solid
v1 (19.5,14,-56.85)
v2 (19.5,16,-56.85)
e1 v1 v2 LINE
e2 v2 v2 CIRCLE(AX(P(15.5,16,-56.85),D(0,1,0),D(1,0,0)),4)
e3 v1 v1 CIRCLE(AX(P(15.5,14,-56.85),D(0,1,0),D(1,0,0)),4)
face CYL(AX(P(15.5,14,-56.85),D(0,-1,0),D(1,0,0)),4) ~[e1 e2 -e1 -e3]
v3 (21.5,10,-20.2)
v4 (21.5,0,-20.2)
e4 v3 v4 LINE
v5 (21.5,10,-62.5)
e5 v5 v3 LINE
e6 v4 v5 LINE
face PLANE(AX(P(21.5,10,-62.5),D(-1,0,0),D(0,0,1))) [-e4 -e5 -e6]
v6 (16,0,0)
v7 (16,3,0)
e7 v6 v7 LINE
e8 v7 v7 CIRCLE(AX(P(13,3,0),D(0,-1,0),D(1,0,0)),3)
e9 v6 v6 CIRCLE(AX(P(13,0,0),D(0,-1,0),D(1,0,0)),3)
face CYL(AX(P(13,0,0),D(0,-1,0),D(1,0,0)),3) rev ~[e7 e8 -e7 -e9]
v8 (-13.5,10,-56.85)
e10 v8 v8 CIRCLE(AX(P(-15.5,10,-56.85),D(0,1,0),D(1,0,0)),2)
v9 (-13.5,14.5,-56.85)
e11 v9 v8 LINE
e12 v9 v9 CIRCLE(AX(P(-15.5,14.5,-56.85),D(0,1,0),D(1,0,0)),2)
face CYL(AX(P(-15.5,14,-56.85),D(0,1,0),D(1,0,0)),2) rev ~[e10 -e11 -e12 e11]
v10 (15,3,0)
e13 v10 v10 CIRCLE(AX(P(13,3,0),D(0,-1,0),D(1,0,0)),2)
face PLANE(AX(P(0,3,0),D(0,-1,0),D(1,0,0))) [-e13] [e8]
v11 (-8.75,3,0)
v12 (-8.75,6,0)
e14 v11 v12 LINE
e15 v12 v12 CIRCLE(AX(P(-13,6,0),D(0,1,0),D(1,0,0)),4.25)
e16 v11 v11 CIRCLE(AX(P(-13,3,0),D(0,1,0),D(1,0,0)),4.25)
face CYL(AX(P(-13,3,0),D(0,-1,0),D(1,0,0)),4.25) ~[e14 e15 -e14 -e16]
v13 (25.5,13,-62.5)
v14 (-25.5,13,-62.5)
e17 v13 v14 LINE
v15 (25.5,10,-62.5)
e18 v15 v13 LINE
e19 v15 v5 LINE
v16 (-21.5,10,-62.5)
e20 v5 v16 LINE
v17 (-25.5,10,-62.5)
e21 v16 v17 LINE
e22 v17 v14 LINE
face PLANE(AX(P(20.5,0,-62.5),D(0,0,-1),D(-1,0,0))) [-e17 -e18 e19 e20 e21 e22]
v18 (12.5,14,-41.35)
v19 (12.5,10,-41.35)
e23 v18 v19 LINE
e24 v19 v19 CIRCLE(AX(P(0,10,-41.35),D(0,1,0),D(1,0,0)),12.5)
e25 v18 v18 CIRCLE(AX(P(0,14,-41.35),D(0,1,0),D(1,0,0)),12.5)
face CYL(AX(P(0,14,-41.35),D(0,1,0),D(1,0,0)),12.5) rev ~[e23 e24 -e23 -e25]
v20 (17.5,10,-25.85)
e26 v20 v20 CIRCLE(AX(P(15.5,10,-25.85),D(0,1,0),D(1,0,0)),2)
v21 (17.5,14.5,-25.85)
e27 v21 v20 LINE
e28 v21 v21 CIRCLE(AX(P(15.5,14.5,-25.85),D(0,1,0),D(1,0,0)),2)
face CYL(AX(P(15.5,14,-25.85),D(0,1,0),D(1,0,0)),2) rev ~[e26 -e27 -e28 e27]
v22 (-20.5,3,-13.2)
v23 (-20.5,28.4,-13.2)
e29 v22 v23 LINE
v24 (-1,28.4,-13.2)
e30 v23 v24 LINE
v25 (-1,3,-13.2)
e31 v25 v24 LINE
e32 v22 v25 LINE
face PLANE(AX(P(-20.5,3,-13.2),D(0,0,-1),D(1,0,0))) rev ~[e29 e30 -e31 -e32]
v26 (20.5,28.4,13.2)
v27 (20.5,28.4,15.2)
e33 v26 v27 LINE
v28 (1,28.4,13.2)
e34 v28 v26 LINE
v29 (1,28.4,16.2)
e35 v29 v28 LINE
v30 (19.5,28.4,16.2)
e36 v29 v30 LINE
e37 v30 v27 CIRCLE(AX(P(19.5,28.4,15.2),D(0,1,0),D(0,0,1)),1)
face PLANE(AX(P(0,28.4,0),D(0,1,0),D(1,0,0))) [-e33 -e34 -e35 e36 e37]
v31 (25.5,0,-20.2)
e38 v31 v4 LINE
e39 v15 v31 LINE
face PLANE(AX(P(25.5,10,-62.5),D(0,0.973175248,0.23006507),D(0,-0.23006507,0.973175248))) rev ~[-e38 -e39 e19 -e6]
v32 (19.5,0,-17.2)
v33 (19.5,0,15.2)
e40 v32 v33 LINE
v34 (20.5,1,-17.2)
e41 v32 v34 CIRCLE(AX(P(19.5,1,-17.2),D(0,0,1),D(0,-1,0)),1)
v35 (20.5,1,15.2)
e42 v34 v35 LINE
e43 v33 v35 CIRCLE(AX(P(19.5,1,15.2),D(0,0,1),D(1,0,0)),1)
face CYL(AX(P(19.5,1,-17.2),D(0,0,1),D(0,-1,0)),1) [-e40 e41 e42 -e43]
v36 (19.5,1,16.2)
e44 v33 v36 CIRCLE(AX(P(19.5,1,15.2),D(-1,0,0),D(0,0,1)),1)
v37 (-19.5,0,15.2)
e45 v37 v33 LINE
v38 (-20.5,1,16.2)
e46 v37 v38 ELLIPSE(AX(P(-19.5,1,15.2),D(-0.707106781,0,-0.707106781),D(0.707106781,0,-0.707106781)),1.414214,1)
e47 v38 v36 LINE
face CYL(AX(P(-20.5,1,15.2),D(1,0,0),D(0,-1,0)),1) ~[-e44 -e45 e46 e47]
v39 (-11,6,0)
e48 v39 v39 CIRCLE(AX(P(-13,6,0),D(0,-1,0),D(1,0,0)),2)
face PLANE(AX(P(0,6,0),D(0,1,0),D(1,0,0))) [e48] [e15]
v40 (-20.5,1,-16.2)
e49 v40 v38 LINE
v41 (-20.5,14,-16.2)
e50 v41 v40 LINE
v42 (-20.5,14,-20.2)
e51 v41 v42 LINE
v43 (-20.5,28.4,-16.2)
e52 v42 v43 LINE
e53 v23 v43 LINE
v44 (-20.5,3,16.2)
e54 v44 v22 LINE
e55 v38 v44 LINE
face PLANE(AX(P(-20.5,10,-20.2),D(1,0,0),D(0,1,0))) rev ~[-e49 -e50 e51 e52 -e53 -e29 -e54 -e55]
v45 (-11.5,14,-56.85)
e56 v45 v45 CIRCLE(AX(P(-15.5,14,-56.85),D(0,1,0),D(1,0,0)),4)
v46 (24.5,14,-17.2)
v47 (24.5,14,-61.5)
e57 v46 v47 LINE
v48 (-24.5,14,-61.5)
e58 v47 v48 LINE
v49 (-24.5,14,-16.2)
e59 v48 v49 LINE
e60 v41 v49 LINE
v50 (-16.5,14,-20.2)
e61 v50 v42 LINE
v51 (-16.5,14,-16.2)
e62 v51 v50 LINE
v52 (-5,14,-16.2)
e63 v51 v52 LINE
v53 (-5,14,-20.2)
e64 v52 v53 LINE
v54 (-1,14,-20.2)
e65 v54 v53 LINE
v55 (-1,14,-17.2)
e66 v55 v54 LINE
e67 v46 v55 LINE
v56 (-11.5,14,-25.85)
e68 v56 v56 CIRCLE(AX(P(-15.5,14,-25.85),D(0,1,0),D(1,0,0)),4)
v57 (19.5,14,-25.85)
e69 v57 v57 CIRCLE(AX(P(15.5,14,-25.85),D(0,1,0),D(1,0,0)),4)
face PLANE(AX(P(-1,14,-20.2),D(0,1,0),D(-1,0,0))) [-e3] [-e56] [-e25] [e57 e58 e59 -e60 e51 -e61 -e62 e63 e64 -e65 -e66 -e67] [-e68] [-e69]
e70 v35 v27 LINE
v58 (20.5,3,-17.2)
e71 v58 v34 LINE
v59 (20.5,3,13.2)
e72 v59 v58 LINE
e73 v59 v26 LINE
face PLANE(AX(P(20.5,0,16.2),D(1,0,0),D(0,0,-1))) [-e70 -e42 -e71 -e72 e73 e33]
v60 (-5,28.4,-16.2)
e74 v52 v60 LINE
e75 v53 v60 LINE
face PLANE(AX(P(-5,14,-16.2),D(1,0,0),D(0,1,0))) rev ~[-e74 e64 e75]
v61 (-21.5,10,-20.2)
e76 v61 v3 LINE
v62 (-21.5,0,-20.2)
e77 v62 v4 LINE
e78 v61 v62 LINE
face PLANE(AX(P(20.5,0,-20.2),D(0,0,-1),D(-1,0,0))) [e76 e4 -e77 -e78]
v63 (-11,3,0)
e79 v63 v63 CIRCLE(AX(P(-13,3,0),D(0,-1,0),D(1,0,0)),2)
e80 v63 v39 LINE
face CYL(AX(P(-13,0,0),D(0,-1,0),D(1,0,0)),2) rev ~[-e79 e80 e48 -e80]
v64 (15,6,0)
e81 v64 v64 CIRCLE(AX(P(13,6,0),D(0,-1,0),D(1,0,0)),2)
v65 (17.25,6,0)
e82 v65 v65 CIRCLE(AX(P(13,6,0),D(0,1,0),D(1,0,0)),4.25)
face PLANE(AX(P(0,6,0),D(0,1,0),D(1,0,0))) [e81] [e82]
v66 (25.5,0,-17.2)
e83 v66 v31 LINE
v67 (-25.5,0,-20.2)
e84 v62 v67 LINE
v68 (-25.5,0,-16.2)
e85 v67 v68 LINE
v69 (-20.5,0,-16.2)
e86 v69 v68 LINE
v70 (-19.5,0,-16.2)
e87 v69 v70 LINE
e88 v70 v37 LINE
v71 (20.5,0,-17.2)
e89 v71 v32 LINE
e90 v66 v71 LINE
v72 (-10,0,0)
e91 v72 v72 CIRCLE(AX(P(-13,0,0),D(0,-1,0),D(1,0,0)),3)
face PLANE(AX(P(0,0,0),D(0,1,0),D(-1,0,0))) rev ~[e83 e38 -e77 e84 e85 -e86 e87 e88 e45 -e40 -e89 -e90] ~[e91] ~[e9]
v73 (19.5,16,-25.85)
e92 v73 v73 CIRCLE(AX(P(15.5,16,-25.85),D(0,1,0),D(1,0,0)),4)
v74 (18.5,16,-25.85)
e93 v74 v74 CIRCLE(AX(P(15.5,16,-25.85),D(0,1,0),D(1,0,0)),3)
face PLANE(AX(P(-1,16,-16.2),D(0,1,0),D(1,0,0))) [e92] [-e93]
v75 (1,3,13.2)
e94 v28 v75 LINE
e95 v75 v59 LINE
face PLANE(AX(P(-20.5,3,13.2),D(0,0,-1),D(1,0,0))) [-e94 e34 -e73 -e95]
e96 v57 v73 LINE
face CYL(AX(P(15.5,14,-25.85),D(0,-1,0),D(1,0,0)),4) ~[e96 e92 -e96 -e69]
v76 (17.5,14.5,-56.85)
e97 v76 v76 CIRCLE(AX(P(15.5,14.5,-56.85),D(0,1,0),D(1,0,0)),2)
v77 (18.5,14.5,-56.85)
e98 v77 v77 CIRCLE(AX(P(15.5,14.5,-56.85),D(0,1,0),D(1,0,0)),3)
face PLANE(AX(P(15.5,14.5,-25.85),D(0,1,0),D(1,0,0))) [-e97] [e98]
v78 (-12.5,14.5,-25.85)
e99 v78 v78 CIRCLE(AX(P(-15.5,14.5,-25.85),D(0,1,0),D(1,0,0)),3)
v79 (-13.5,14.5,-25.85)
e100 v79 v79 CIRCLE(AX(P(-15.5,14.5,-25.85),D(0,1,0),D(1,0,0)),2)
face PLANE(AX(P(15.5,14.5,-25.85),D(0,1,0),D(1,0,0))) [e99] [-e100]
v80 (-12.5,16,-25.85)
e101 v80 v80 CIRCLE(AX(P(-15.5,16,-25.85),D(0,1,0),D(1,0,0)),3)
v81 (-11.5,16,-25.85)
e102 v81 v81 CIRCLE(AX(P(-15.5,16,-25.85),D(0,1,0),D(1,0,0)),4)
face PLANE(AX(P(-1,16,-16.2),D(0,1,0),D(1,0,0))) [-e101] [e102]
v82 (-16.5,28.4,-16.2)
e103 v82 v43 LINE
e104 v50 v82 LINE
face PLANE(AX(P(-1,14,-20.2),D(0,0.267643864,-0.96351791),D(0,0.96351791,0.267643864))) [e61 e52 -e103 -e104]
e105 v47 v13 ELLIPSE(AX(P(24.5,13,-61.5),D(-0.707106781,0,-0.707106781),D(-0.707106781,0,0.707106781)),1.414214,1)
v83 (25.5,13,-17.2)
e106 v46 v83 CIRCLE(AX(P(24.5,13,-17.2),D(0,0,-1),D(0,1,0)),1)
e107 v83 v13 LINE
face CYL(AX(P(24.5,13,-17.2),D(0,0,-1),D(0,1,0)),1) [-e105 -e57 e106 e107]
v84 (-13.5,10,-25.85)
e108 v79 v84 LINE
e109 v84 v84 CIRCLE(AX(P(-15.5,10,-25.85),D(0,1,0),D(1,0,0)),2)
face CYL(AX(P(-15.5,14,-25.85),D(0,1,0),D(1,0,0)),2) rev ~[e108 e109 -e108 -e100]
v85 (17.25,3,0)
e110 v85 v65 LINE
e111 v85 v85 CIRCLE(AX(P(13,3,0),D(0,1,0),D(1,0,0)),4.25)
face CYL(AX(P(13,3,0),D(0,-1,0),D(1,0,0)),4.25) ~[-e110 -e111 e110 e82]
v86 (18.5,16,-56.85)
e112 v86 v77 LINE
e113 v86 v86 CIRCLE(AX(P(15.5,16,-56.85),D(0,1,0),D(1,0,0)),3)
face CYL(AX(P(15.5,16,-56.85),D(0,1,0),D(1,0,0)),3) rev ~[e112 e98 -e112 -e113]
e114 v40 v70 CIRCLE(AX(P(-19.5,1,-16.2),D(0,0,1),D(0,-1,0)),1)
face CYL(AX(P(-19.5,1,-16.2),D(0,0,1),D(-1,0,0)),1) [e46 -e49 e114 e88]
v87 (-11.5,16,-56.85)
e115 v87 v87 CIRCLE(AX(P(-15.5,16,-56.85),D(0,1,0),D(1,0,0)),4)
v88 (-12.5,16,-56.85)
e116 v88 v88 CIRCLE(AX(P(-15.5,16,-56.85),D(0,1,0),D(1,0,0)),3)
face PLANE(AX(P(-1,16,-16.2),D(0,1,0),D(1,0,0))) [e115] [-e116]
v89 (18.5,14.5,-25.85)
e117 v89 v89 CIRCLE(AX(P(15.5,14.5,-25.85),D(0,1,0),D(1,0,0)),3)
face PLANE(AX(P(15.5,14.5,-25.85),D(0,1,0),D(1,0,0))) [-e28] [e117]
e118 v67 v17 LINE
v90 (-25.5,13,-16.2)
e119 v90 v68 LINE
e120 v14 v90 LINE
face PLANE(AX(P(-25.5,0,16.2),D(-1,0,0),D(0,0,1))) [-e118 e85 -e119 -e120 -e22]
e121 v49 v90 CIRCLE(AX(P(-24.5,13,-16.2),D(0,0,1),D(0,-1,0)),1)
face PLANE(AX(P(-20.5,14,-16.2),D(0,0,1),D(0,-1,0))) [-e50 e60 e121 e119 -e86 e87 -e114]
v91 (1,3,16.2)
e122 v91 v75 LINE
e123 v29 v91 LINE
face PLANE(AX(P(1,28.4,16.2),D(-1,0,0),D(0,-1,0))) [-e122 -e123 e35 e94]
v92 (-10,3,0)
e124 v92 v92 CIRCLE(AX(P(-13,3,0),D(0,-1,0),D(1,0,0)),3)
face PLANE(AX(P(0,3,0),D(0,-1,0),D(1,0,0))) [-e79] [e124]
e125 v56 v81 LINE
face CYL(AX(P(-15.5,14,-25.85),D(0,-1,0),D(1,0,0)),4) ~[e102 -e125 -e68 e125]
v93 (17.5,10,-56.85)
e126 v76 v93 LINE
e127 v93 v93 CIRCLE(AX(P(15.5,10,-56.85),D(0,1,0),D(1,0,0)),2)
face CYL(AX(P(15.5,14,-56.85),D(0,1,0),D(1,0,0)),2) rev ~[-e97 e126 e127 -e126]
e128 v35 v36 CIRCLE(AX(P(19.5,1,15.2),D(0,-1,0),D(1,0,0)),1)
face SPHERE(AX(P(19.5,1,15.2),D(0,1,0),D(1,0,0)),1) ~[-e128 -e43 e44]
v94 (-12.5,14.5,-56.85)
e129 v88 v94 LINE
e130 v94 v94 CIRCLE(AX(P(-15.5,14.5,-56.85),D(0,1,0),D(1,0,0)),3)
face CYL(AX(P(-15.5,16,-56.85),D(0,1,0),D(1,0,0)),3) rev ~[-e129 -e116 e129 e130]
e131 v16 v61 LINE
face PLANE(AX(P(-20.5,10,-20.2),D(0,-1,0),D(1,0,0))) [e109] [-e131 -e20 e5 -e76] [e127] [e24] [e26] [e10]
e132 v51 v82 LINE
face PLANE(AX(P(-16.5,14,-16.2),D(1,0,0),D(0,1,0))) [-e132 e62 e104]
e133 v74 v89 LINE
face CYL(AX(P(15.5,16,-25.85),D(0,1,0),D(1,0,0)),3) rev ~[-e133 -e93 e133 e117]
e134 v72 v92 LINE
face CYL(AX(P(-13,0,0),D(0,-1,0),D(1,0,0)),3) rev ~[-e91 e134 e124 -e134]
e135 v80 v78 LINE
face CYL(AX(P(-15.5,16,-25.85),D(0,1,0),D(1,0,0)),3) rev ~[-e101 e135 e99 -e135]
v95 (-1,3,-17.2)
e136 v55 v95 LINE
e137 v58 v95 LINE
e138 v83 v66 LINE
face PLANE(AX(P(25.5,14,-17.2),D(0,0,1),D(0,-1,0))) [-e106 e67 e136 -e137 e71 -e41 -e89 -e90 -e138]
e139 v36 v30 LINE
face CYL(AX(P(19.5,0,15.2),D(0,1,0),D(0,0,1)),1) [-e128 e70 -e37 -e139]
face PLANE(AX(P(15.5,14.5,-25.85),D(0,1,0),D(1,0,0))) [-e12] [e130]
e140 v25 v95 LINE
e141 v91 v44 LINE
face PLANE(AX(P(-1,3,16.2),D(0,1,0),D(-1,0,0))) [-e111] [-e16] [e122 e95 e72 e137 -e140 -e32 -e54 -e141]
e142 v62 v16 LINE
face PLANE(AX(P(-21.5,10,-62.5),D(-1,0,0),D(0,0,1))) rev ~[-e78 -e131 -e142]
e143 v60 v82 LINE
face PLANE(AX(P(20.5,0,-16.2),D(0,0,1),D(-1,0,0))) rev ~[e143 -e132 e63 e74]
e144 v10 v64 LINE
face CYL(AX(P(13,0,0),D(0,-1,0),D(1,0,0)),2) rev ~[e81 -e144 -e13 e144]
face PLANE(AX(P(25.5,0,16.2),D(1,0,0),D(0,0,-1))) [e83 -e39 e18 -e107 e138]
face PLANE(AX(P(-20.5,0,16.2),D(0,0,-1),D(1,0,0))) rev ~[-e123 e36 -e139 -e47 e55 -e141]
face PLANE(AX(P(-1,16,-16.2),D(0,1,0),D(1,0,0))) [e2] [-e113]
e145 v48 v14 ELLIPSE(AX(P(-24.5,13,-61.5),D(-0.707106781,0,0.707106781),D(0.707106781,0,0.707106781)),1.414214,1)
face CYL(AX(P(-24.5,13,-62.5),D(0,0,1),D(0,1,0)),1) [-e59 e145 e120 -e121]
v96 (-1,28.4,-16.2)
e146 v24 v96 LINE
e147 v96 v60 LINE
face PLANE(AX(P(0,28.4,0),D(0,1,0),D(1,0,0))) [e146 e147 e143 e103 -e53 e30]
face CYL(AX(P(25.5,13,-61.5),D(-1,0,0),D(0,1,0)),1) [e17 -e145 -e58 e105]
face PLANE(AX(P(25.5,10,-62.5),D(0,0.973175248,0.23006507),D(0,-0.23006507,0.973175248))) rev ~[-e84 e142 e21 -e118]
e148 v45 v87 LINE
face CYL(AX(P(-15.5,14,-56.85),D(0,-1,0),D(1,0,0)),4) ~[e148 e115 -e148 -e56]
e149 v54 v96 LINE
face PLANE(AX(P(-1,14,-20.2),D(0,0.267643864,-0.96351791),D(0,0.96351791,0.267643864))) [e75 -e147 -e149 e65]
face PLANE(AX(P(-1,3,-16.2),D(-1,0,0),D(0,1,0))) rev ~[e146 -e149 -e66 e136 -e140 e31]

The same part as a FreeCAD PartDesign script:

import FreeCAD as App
import Part
import Sketcher
from FreeCAD import Vector


def edges_at(feature, points):
    """Names of the edges that pass closest to the given points."""
    edges = feature.Shape.Edges
    near = lambda p: min(range(len(edges)), key=lambda i: edges[i].distToShape(Part.Vertex(*p))[0])
    return sorted({f"Edge{near(p) + 1}" for p in points})


def add_polygon(sketch, points):
    """Adds a closed chain of lines whose ends are joined by coincident constraints."""
    first, n = sketch.GeometryCount, len(points)
    for a, b in zip(points, points[1:] + points[:1]):
        sketch.addGeometry(Part.LineSegment(App.Vector(*a, 0), App.Vector(*b, 0)), False)
    for i in range(n):
        sketch.addConstraint(Sketcher.Constraint("Coincident", first + i, 2, first + (i + 1) % n, 1))

doc = App.newDocument("Part")
params = doc.addObject("Spreadsheet::Sheet", "Params")
for row, (alias, value) in enumerate([
    ("sketch1_width", "41 mm"),
    ("sketch1_height", "32.4 mm"),
    ("pad1_length", "3 mm"),
    ("sketch2_height", "3 mm"),
    ("sketch2_width", "41 mm"),
    ("pad2_length", "25.4 mm"),
    ("sketch3_width", "21.5 mm"),
    ("sketch3_height", "25.4 mm"),
    ("pocket1_length", "3 mm"),
    ("sketch4_width", "21.5 mm"),
    ("sketch4_height", "25.4 mm"),
    ("pocket2_length", "3 mm"),
    ("sketch5_diameter", "8.5 mm"),
    ("pad3_length", "3 mm"),
    ("sketch6_diameter", "4 mm"),
    ("pocket3_length", "6 mm"),
    ("sketch7_diameter", "6 mm"),
    ("pocket4_length", "3 mm"),
    ("sketch8_width", "4 mm"),
    ("sketch8_height", "14 mm"),
    ("sketch8_width2", "41 mm"),
    ("sketch8_width3", "11.5 mm"),
    ("sketch8_height2", "28.4 mm"),
    ("pad4_length", "4 mm"),
    ("sketch9_height", "4 mm"),
    ("sketch9_width", "41 mm"),
    ("pad5_length", "42.3 mm"),
    ("sketch10_diameter", "8 mm"),
    ("pad6_length", "2 mm"),
    ("sketch11_diameter", "25 mm"),
    ("sketch11_diameter2", "4 mm"),
    ("pocket5_length", "10 mm"),
    ("sketch12_diameter", "6 mm"),
    ("pocket6_length", "1.5 mm"),
    ("sketch13_width", "14 mm"),
    ("sketch13_width2", "10 mm"),
    ("sketch13_height", "46.3 mm"),
    ("pad7_length", "5 mm"),
    ("sketch14_width", "4 mm"),
    ("sketch14_width2", "10 mm"),
    ("sketch14_height", "42.3 mm"),
    ("pad8_length", "5 mm"),
    ("sketch15_width", "4 mm"),
    ("sketch15_height", "42.3 mm"),
    ("pad9_length", "10 mm"),
    ("sketch16_width", "10 mm"),
    ("sketch16_height", "42.3 mm"),
    ("pocket7_length", "60 mm"),
    ("sketch17_height", "4 mm"),
    ("sketch17_width", "14.4 mm"),
    ("pocket8_length", "60 mm"),
    ("sketch18_height", "1 mm"),
    ("sketch18_width", "11 mm"),
    ("pocket9_length", "26.5 mm"),
    ("sketch19_height", "1 mm"),
    ("sketch19_width", "3 mm"),
    ("pocket10_length", "5 mm"),
    ("fillet_radius", "1 mm"),
], start=1):
    params.set(f"A{row}", alias)
    params.set(f"B{row}", "=" + value)
    params.setAlias(f"B{row}", alias)

body = doc.addObject("PartDesign::Body", "Body")

sketch1 = body.newObject("Sketcher::SketchObject", "Sketch")
sketch1.AttachmentSupport = (doc.getObject("XZ_Plane"), [""])
sketch1.MapMode = "FlatFace"
add_polygon(sketch1, [(-20, -16), (-20, 16), (20, 16), (20, -16)])
sketch1.addConstraint([
    Sketcher.Constraint("Vertical", 0),
    Sketcher.Constraint("Horizontal", 1),
    Sketcher.Constraint("Vertical", 2),
    Sketcher.Constraint("Horizontal", 3),
    Sketcher.Constraint("Symmetric", 0, 2, 2, 2, -1, 1),
    Sketcher.Constraint("DistanceX", 1, 1, 1, 2, 41.0),
    Sketcher.Constraint("DistanceY", 0, 1, 0, 2, 32.4),
])
sketch1.setExpression("Constraints[9]", "Params.sketch1_width")
sketch1.setExpression("Constraints[10]", "Params.sketch1_height")
pad1 = body.newObject("PartDesign::Pad", "Pad")
pad1.Profile = sketch1
pad1.setExpression("Length", "Params.pad1_length")
pad1.Reversed = True

sketch2 = body.newObject("Sketcher::SketchObject", "Sketch001")
sketch2.AttachmentSupport = (doc.getObject("XZ_Plane"), [""])
sketch2.MapMode = "FlatFace"
sketch2.AttachmentOffset = App.Placement(Vector(0, 0, -3), App.Rotation())
add_polygon(sketch2, [(-20.5, 13.2), (-20.5, 16.2), (20.5, 16.2), (20.5, 13.2)])
add_polygon(sketch2, [(-20.5, -16.2), (-20.5, -13.2), (20.5, -13.2), (20.5, -16.2)])
sketch2.addConstraint([
    Sketcher.Constraint("Vertical", 0),
    Sketcher.Constraint("Horizontal", 1),
    Sketcher.Constraint("Vertical", 2),
    Sketcher.Constraint("Horizontal", 3),
    Sketcher.Constraint("Vertical", 4),
    Sketcher.Constraint("Horizontal", 5),
    Sketcher.Constraint("Vertical", 6),
    Sketcher.Constraint("Horizontal", 7),
    Sketcher.Constraint("Symmetric", 2, 2, 4, 2, -1, 1),
    Sketcher.Constraint("Symmetric", 0, 2, 6, 2, -1, 1),
    Sketcher.Constraint("Vertical", 3, 2, 4, 2),
    Sketcher.Constraint("DistanceY", 0, 1, 0, 2, 3.0),
    Sketcher.Constraint("DistanceX", 1, 1, 1, 2, 41.0),
    Sketcher.Constraint("DistanceY", -1, 1, 0, 2, 16.2),
])
sketch2.setExpression("Constraints[19]", "Params.sketch2_height")
sketch2.setExpression("Constraints[20]", "Params.sketch2_width")
pad2 = body.newObject("PartDesign::Pad", "Pad001")
pad2.Profile = sketch2
pad2.setExpression("Length", "Params.pad2_length")
pad2.Reversed = True

sketch3 = body.newObject("Sketcher::SketchObject", "Sketch002")
sketch3.AttachmentSupport = (doc.getObject("XY_Plane"), [""])
sketch3.MapMode = "FlatFace"
sketch3.AttachmentOffset = App.Placement(Vector(0, 0, -16.2), App.Rotation())
add_polygon(sketch3, [(20, 3), (-1, 3), (-1, 28), (20, 28)])
sketch3.addConstraint([
    Sketcher.Constraint("Horizontal", 0),
    Sketcher.Constraint("Vertical", 1),
    Sketcher.Constraint("Horizontal", 2),
    Sketcher.Constraint("Vertical", 3),
    Sketcher.Constraint("DistanceX", 0, 2, 0, 1, 21.5),
    Sketcher.Constraint("DistanceY", 1, 1, 1, 2, 25.4),
    Sketcher.Constraint("DistanceX", 0, 2, -1, 1, 1.0),
    Sketcher.Constraint("DistanceY", -1, 1, 0, 2, 3.0),
])
sketch3.setExpression("Constraints[8]", "Params.sketch3_width")
sketch3.setExpression("Constraints[9]", "Params.sketch3_height")
pocket1 = body.newObject("PartDesign::Pocket", "Pocket")
pocket1.Profile = sketch3
pocket1.setExpression("Length", "Params.pocket1_length")
pocket1.Reversed = True

sketch4 = body.newObject("Sketcher::SketchObject", "Sketch003")
sketch4.AttachmentSupport = (doc.getObject("XY_Plane"), [""])
sketch4.MapMode = "FlatFace"
sketch4.AttachmentOffset = App.Placement(Vector(0, 0, 16.2), App.Rotation())
add_polygon(sketch4, [(1, 3), (1, 28), (-20, 28), (-20, 3)])
sketch4.addConstraint([
    Sketcher.Constraint("Vertical", 0),
    Sketcher.Constraint("Horizontal", 1),
    Sketcher.Constraint("Vertical", 2),
    Sketcher.Constraint("Horizontal", 3),
    Sketcher.Constraint("DistanceX", 1, 2, 1, 1, 21.5),
    Sketcher.Constraint("DistanceY", 0, 1, 0, 2, 25.4),
    Sketcher.Constraint("DistanceX", -1, 1, 0, 2, 1.0),
    Sketcher.Constraint("DistanceY", -1, 1, 2, 2, 3.0),
])
sketch4.setExpression("Constraints[8]", "Params.sketch4_width")
sketch4.setExpression("Constraints[9]", "Params.sketch4_height")
pocket2 = body.newObject("PartDesign::Pocket", "Pocket001")
pocket2.Profile = sketch4
pocket2.setExpression("Length", "Params.pocket2_length")

sketch5 = body.newObject("Sketcher::SketchObject", "Sketch004")
sketch5.AttachmentSupport = (doc.getObject("XZ_Plane"), [""])
sketch5.MapMode = "FlatFace"
sketch5.AttachmentOffset = App.Placement(Vector(0, 0, -3), App.Rotation())
sketch5.addGeometry([
    Part.Circle(Vector(13, 0, 0), Vector(0, 0, 1), 4.2),
    Part.Circle(Vector(-13, 0, 0), Vector(0, 0, 1), 4.2),
], False)
sketch5.addConstraint([
    Sketcher.Constraint("Equal", 0, 1),
    Sketcher.Constraint("Symmetric", 0, 3, 1, 3, -1, 1),
    Sketcher.Constraint("PointOnObject", 0, 3, -1),
    Sketcher.Constraint("Diameter", 0, 8.5),
    Sketcher.Constraint("DistanceX", 1, 3, 0, 3, 26.0),
])
sketch5.setExpression("Constraints[3]", "Params.sketch5_diameter")
pad3 = body.newObject("PartDesign::Pad", "Pad002")
pad3.Profile = sketch5
pad3.setExpression("Length", "Params.pad3_length")
pad3.Reversed = True

sketch6 = body.newObject("Sketcher::SketchObject", "Sketch005")
sketch6.AttachmentSupport = (doc.getObject("XZ_Plane"), [""])
sketch6.MapMode = "FlatFace"
sketch6.addGeometry([
    Part.Circle(Vector(-13, 0, 0), Vector(0, 0, 1), 2),
    Part.Circle(Vector(13, 0, 0), Vector(0, 0, 1), 2),
], False)
sketch6.addConstraint([
    Sketcher.Constraint("Equal", 0, 1),
    Sketcher.Constraint("Symmetric", 0, 3, 1, 3, -1, 1),
    Sketcher.Constraint("PointOnObject", 0, 3, -1),
    Sketcher.Constraint("Diameter", 0, 4.0),
    Sketcher.Constraint("DistanceX", 0, 3, -1, 1, 13.0),
])
sketch6.setExpression("Constraints[3]", "Params.sketch6_diameter")
pocket3 = body.newObject("PartDesign::Pocket", "Pocket002")
pocket3.Profile = sketch6
pocket3.setExpression("Length", "Params.pocket3_length")

sketch7 = body.newObject("Sketcher::SketchObject", "Sketch006")
sketch7.AttachmentSupport = (doc.getObject("XZ_Plane"), [""])
sketch7.MapMode = "FlatFace"
sketch7.addGeometry([
    Part.Circle(Vector(-13, 0, 0), Vector(0, 0, 1), 3),
    Part.Circle(Vector(13, 0, 0), Vector(0, 0, 1), 3),
], False)
sketch7.addConstraint([
    Sketcher.Constraint("Equal", 0, 1),
    Sketcher.Constraint("Symmetric", 0, 3, 1, 3, -1, 1),
    Sketcher.Constraint("PointOnObject", 0, 3, -1),
    Sketcher.Constraint("Diameter", 0, 6.0),
    Sketcher.Constraint("DistanceX", 0, 3, -1, 1, 13.0),
])
sketch7.setExpression("Constraints[3]", "Params.sketch7_diameter")
pocket4 = body.newObject("PartDesign::Pocket", "Pocket003")
pocket4.Profile = sketch7
pocket4.setExpression("Length", "Params.pocket4_length")

sketch8 = body.newObject("Sketcher::SketchObject", "Sketch007")
sketch8.AttachmentSupport = (doc.getObject("XY_Plane"), [""])
sketch8.MapMode = "FlatFace"
sketch8.AttachmentOffset = App.Placement(Vector(0, 0, -16.2), App.Rotation())
add_polygon(sketch8, [(20.5, 0), (-20.5, 0), (-20.5, 28.4), (-16.5, 28.4), (-16.5, 14), (-5, 14), (-5, 28.4), (-1, 28.4), (-1, 14), (20.5, 14)])
sketch8.addConstraint([
    Sketcher.Constraint("Horizontal", 0),
    Sketcher.Constraint("Vertical", 1),
    Sketcher.Constraint("Horizontal", 2),
    Sketcher.Constraint("Vertical", 3),
    Sketcher.Constraint("Horizontal", 4),
    Sketcher.Constraint("Vertical", 5),
    Sketcher.Constraint("Horizontal", 6),
    Sketcher.Constraint("Vertical", 7),
    Sketcher.Constraint("Horizontal", 8),
    Sketcher.Constraint("Vertical", 9),
    Sketcher.Constraint("Symmetric", 0, 2, 9, 2, -1, 1),
    Sketcher.Constraint("Horizontal", 2, 2, 5, 2),
    Sketcher.Constraint("Horizontal", 4, 2, 7, 2),
    Sketcher.Constraint("Equal", 2, 6),
    Sketcher.Constraint("DistanceX", 2, 1, 2, 2, 4.0),
    Sketcher.Constraint("DistanceY", 9, 2, 9, 1, 14.0),
    Sketcher.Constraint("DistanceX", 0, 2, 0, 1, 41.0),
    Sketcher.Constraint("DistanceX", 4, 1, 4, 2, 11.5),
    Sketcher.Constraint("DistanceY", 1, 1, 1, 2, 28.4),
])
sketch8.setExpression("Constraints[24]", "Params.sketch8_width")
sketch8.setExpression("Constraints[25]", "Params.sketch8_height")
sketch8.setExpression("Constraints[26]", "Params.sketch8_width2")
sketch8.setExpression("Constraints[27]", "Params.sketch8_width3")
sketch8.setExpression("Constraints[28]", "Params.sketch8_height2")
pad4 = body.newObject("PartDesign::Pad", "Pad003")
pad4.Profile = sketch8
pad4.setExpression("Length", "Params.pad4_length")
pad4.Reversed = True

sketch9 = body.newObject("Sketcher::SketchObject", "Sketch008")
sketch9.AttachmentSupport = (doc.getObject("XY_Plane"), [""])
sketch9.MapMode = "FlatFace"
sketch9.AttachmentOffset = App.Placement(Vector(0, 0, -20.2), App.Rotation())
add_polygon(sketch9, [(-20.5, 14), (20.5, 14), (20.5, 10), (-20.5, 10)])
sketch9.addConstraint([
    Sketcher.Constraint("Horizontal", 0),
    Sketcher.Constraint("Vertical", 1),
    Sketcher.Constraint("Horizontal", 2),
    Sketcher.Constraint("Vertical", 3),
    Sketcher.Constraint("DistanceY", 1, 2, 1, 1, 4.0),
    Sketcher.Constraint("DistanceX", 0, 1, 0, 2, 41.0),
    Sketcher.Constraint("DistanceY", -1, 1, 0, 2, 14.0),
    Sketcher.Constraint("DistanceX", -1, 1, 0, 2, 20.5),
])
sketch9.setExpression("Constraints[8]", "Params.sketch9_height")
sketch9.setExpression("Constraints[9]", "Params.sketch9_width")
pad5 = body.newObject("PartDesign::Pad", "Pad004")
pad5.Profile = sketch9
pad5.setExpression("Length", "Params.pad5_length")
pad5.Reversed = True

sketch10 = body.newObject("Sketcher::SketchObject", "Sketch009")
sketch10.AttachmentSupport = (doc.getObject("XZ_Plane"), [""])
sketch10.MapMode = "FlatFace"
sketch10.AttachmentOffset = App.Placement(Vector(0, 0, -14), App.Rotation())
sketch10.addGeometry([
    Part.Circle(Vector(15.5, -56.9, 0), Vector(0, 0, 1), 4),
    Part.Circle(Vector(-15.5, -56.9, 0), Vector(0, 0, 1), 4),
    Part.Circle(Vector(-15.5, -25.9, 0), Vector(0, 0, 1), 4),
    Part.Circle(Vector(15.5, -25.9, 0), Vector(0, 0, 1), 4),
], False)
sketch10.addConstraint([
    Sketcher.Constraint("Equal", 0, 1),
    Sketcher.Constraint("Equal", 1, 2),
    Sketcher.Constraint("Equal", 2, 3),
    Sketcher.Constraint("Symmetric", 0, 3, 1, 3, -2),
    Sketcher.Constraint("Symmetric", 2, 3, 3, 3, -2),
    Sketcher.Constraint("Vertical", 1, 3, 2, 3),
    Sketcher.Constraint("Diameter", 0, 8.0),
    Sketcher.Constraint("DistanceX", 1, 3, 0, 3, 31.0),
    Sketcher.Constraint("DistanceY", 1, 3, 2, 3, 31.0),
    Sketcher.Constraint("DistanceY", 0, 3, -1, 1, 56.85),
])
sketch10.setExpression("Constraints[6]", "Params.sketch10_diameter")
pad6 = body.newObject("PartDesign::Pad", "Pad005")
pad6.Profile = sketch10
pad6.setExpression("Length", "Params.pad6_length")
pad6.Reversed = True

sketch11 = body.newObject("Sketcher::SketchObject", "Sketch010")
sketch11.AttachmentSupport = (doc.getObject("XZ_Plane"), [""])
sketch11.MapMode = "FlatFace"
sketch11.AttachmentOffset = App.Placement(Vector(0, 0, -14), App.Rotation())
sketch11.addGeometry([
    Part.Circle(Vector(0, -41.4, 0), Vector(0, 0, 1), 12.5),
    Part.Circle(Vector(-15.5, -56.9, 0), Vector(0, 0, 1), 2),
    Part.Circle(Vector(-15.5, -25.9, 0), Vector(0, 0, 1), 2),
    Part.Circle(Vector(15.5, -25.9, 0), Vector(0, 0, 1), 2),
    Part.Circle(Vector(15.5, -56.9, 0), Vector(0, 0, 1), 2),
], False)
sketch11.addConstraint([
    Sketcher.Constraint("Equal", 1, 2),
    Sketcher.Constraint("Equal", 2, 3),
    Sketcher.Constraint("Equal", 3, 4),
    Sketcher.Constraint("Symmetric", 2, 3, 3, 3, -2),
    Sketcher.Constraint("Symmetric", 1, 3, 4, 3, -2),
    Sketcher.Constraint("PointOnObject", 0, 3, -2),
    Sketcher.Constraint("Vertical", 1, 3, 2, 3),
    Sketcher.Constraint("Diameter", 0, 25.0),
    Sketcher.Constraint("Diameter", 1, 4.0),
    Sketcher.Constraint("DistanceY", 1, 3, 2, 3, 31.0),
    Sketcher.Constraint("DistanceX", 2, 3, 3, 3, 31.0),
    Sketcher.Constraint("DistanceY", 1, 3, 0, 3, 15.5),
    Sketcher.Constraint("DistanceY", 0, 3, -1, 1, 41.35),
])
sketch11.setExpression("Constraints[7]", "Params.sketch11_diameter")
sketch11.setExpression("Constraints[8]", "Params.sketch11_diameter2")
pocket5 = body.newObject("PartDesign::Pocket", "Pocket004")
pocket5.Profile = sketch11
pocket5.setExpression("Length", "Params.pocket5_length")
pocket5.Midplane = True

sketch12 = body.newObject("Sketcher::SketchObject", "Sketch011")
sketch12.AttachmentSupport = (doc.getObject("XZ_Plane"), [""])
sketch12.MapMode = "FlatFace"
sketch12.AttachmentOffset = App.Placement(Vector(0, 0, -16), App.Rotation())
sketch12.addGeometry([
    Part.Circle(Vector(-15.5, -25.9, 0), Vector(0, 0, 1), 3),
    Part.Circle(Vector(15.5, -25.9, 0), Vector(0, 0, 1), 3),
    Part.Circle(Vector(15.5, -56.9, 0), Vector(0, 0, 1), 3),
    Part.Circle(Vector(-15.5, -56.9, 0), Vector(0, 0, 1), 3),
], False)
sketch12.addConstraint([
    Sketcher.Constraint("Equal", 0, 1),
    Sketcher.Constraint("Equal", 1, 2),
    Sketcher.Constraint("Equal", 2, 3),
    Sketcher.Constraint("Symmetric", 0, 3, 1, 3, -2),
    Sketcher.Constraint("Symmetric", 2, 3, 3, 3, -2),
    Sketcher.Constraint("Vertical", 1, 3, 2, 3),
    Sketcher.Constraint("Diameter", 0, 6.0),
    Sketcher.Constraint("DistanceX", 0, 3, 1, 3, 31.0),
    Sketcher.Constraint("DistanceY", 2, 3, 1, 3, 31.0),
    Sketcher.Constraint("DistanceY", 0, 3, -1, 1, 25.85),
])
sketch12.setExpression("Constraints[6]", "Params.sketch12_diameter")
pocket6 = body.newObject("PartDesign::Pocket", "Pocket005")
pocket6.Profile = sketch12
pocket6.setExpression("Length", "Params.pocket6_length")
pocket6.Reversed = True

sketch13 = body.newObject("Sketcher::SketchObject", "Sketch012")
sketch13.AttachmentSupport = (doc.getObject("YZ_Plane"), [""])
sketch13.MapMode = "FlatFace"
sketch13.AttachmentOffset = App.Placement(Vector(0, 0, 20.5), App.Rotation())
add_polygon(sketch13, [(14, -62.5), (14, -16.2), (0, -16.2), (0, -20.2), (10, -20.2), (10, -62.5)])
sketch13.addConstraint([
    Sketcher.Constraint("Vertical", 0),
    Sketcher.Constraint("Horizontal", 1),
    Sketcher.Constraint("Vertical", 2),
    Sketcher.Constraint("Horizontal", 3),
    Sketcher.Constraint("Vertical", 4),
    Sketcher.Constraint("Horizontal", 5),
    Sketcher.Constraint("PointOnObject", 1, 2, -2),
    Sketcher.Constraint("Equal", 5, 2),
    Sketcher.Constraint("DistanceX", 1, 2, 1, 1, 14.0),
    Sketcher.Constraint("DistanceX", 3, 1, 3, 2, 10.0),
    Sketcher.Constraint("DistanceY", 0, 1, 0, 2, 46.3),
    Sketcher.Constraint("DistanceY", 0, 2, -1, 1, 16.2),
])
sketch13.setExpression("Constraints[14]", "Params.sketch13_width")
sketch13.setExpression("Constraints[15]", "Params.sketch13_width2")
sketch13.setExpression("Constraints[16]", "Params.sketch13_height")
pad7 = body.newObject("PartDesign::Pad", "Pad006")
pad7.Profile = sketch13
pad7.setExpression("Length", "Params.pad7_length")

sketch14 = body.newObject("Sketcher::SketchObject", "Sketch013")
sketch14.AttachmentSupport = (doc.getObject("YZ_Plane"), [""])
sketch14.MapMode = "FlatFace"
sketch14.AttachmentOffset = App.Placement(Vector(0, 0, -20.5), App.Rotation())
add_polygon(sketch14, [(14, -62.5), (10, -62.5), (10, -20.2), (0, -20.2), (0, -16.2), (14, -16.2)])
sketch14.addConstraint([
    Sketcher.Constraint("Horizontal", 0),
    Sketcher.Constraint("Vertical", 1),
    Sketcher.Constraint("Horizontal", 2),
    Sketcher.Constraint("Vertical", 3),
    Sketcher.Constraint("Horizontal", 4),
    Sketcher.Constraint("Vertical", 5),
    Sketcher.Constraint("PointOnObject", 2, 2, -2),
    Sketcher.Constraint("Equal", 0, 3),
    Sketcher.Constraint("DistanceX", 0, 2, 0, 1, 4.0),
    Sketcher.Constraint("DistanceX", 2, 2, 2, 1, 10.0),
    Sketcher.Constraint("DistanceY", 1, 1, 1, 2, 42.3),
    Sketcher.Constraint("DistanceY", 0, 2, -1, 1, 62.5),
])
sketch14.setExpression("Constraints[14]", "Params.sketch14_width")
sketch14.setExpression("Constraints[15]", "Params.sketch14_width2")
sketch14.setExpression("Constraints[16]", "Params.sketch14_height")
pad8 = body.newObject("PartDesign::Pad", "Pad007")
pad8.Profile = sketch14
pad8.setExpression("Length", "Params.pad8_length")
pad8.Reversed = True

sketch15 = body.newObject("Sketcher::SketchObject", "Sketch014")
sketch15.AttachmentSupport = (doc.getObject("XZ_Plane"), [""])
sketch15.MapMode = "FlatFace"
sketch15.AttachmentOffset = App.Placement(Vector(0, 0, -10), App.Rotation())
add_polygon(sketch15, [(21.5, -62.5), (25.5, -62.5), (25.5, -20.2), (21.5, -20.2)])
add_polygon(sketch15, [(-21.5, -62.5), (-21.5, -20.2), (-25.5, -20.2), (-25.5, -62.5)])
sketch15.addConstraint([
    Sketcher.Constraint("Horizontal", 0),
    Sketcher.Constraint("Vertical", 1),
    Sketcher.Constraint("Horizontal", 2),
    Sketcher.Constraint("Vertical", 3),
    Sketcher.Constraint("Vertical", 4),
    Sketcher.Constraint("Horizontal", 5),
    Sketcher.Constraint("Vertical", 6),
    Sketcher.Constraint("Horizontal", 7),
    Sketcher.Constraint("Symmetric", 2, 2, 4, 2, -2),
    Sketcher.Constraint("Symmetric", 0, 2, 6, 2, -2),
    Sketcher.Constraint("DistanceX", 0, 1, 0, 2, 4.0),
    Sketcher.Constraint("DistanceY", 1, 1, 1, 2, 42.3),
    Sketcher.Constraint("DistanceX", 4, 2, 2, 2, 43.0),
    Sketcher.Constraint("DistanceY", 0, 2, -1, 1, 62.5),
])
sketch15.setExpression("Constraints[18]", "Params.sketch15_width")
sketch15.setExpression("Constraints[19]", "Params.sketch15_height")
pad9 = body.newObject("PartDesign::Pad", "Pad008")
pad9.Profile = sketch15
pad9.setExpression("Length", "Params.pad9_length")

sketch16 = body.newObject("Sketcher::SketchObject", "Sketch015")
sketch16.AttachmentSupport = (doc.getObject("YZ_Plane"), [""])
sketch16.MapMode = "FlatFace"
sketch16.AttachmentOffset = App.Placement(Vector(0, 0, 25.5), App.Rotation())
add_polygon(sketch16, [(0, -62), (10, -62), (0, -20)])
sketch16.addConstraint([
    Sketcher.Constraint("Horizontal", 0),
    Sketcher.Constraint("Vertical", 2),
    Sketcher.Constraint("PointOnObject", 1, 2, -2),
    Sketcher.Constraint("DistanceX", 0, 1, 0, 2, 10.0),
    Sketcher.Constraint("DistanceY", 2, 2, 2, 1, 42.3),
    Sketcher.Constraint("DistanceY", 0, 2, -1, 1, 62.5),
])
sketch16.setExpression("Constraints[6]", "Params.sketch16_width")
sketch16.setExpression("Constraints[7]", "Params.sketch16_height")
pocket7 = body.newObject("PartDesign::Pocket", "Pocket006")
pocket7.Profile = sketch16
pocket7.setExpression("Length", "Params.pocket7_length")

sketch17 = body.newObject("Sketcher::SketchObject", "Sketch016")
sketch17.AttachmentSupport = (doc.getObject("YZ_Plane"), [""])
sketch17.MapMode = "FlatFace"
sketch17.AttachmentOffset = App.Placement(Vector(0, 0, -1), App.Rotation())
add_polygon(sketch17, [(14, -20.2), (28.4, -20.2), (28.4, -16.2)])
sketch17.addConstraint([
    Sketcher.Constraint("Horizontal", 0),
    Sketcher.Constraint("Vertical", 1),
    Sketcher.Constraint("DistanceY", 1, 1, 1, 2, 4.0),
    Sketcher.Constraint("DistanceX", 0, 1, 0, 2, 14.4),
    Sketcher.Constraint("DistanceX", -1, 1, 2, 2, 14.0),
    Sketcher.Constraint("DistanceY", 0, 2, -1, 1, 20.2),
])
sketch17.setExpression("Constraints[5]", "Params.sketch17_height")
sketch17.setExpression("Constraints[6]", "Params.sketch17_width")
pocket8 = body.newObject("PartDesign::Pocket", "Pocket007")
pocket8.Profile = sketch17
pocket8.setExpression("Length", "Params.pocket8_length")

sketch18 = body.newObject("Sketcher::SketchObject", "Sketch017")
sketch18.AttachmentSupport = (doc.getObject("YZ_Plane"), [""])
sketch18.MapMode = "FlatFace"
sketch18.AttachmentOffset = App.Placement(Vector(0, 0, 25.5), App.Rotation())
add_polygon(sketch18, [(14, -17.2), (14, -16.2), (3, -16.2), (3, -17.2)])
sketch18.addConstraint([
    Sketcher.Constraint("Vertical", 0),
    Sketcher.Constraint("Horizontal", 1),
    Sketcher.Constraint("Vertical", 2),
    Sketcher.Constraint("Horizontal", 3),
    Sketcher.Constraint("DistanceY", 0, 1, 0, 2, 1.0),
    Sketcher.Constraint("DistanceX", 1, 2, 1, 1, 11.0),
    Sketcher.Constraint("DistanceX", -1, 1, 0, 2, 14.0),
    Sketcher.Constraint("DistanceY", 0, 2, -1, 1, 16.2),
])
sketch18.setExpression("Constraints[8]", "Params.sketch18_height")
sketch18.setExpression("Constraints[9]", "Params.sketch18_width")
pocket9 = body.newObject("PartDesign::Pocket", "Pocket008")
pocket9.Profile = sketch18
pocket9.setExpression("Length", "Params.pocket9_length")

sketch19 = body.newObject("Sketcher::SketchObject", "Sketch018")
sketch19.AttachmentSupport = (doc.getObject("YZ_Plane"), [""])
sketch19.MapMode = "FlatFace"
sketch19.AttachmentOffset = App.Placement(Vector(0, 0, 25.5), App.Rotation())
add_polygon(sketch19, [(0, -17.2), (3, -17.2), (3, -16.2), (0, -16.2)])
sketch19.addConstraint([
    Sketcher.Constraint("Horizontal", 0),
    Sketcher.Constraint("Vertical", 1),
    Sketcher.Constraint("Horizontal", 2),
    Sketcher.Constraint("Vertical", 3),
    Sketcher.Constraint("PointOnObject", 2, 2, -2),
    Sketcher.Constraint("DistanceY", 1, 1, 1, 2, 1.0),
    Sketcher.Constraint("DistanceX", 0, 1, 0, 2, 3.0),
    Sketcher.Constraint("DistanceY", 0, 2, -1, 1, 17.2),
])
sketch19.setExpression("Constraints[9]", "Params.sketch19_height")
sketch19.setExpression("Constraints[10]", "Params.sketch19_width")
pocket10 = body.newObject("PartDesign::Pocket", "Pocket009")
pocket10.Profile = sketch19
pocket10.setExpression("Length", "Params.pocket10_length")
doc.recompute()

fillet = body.newObject("PartDesign::Fillet", "Fillet")
fillet.Base = (pocket10, edges_at(pocket10, [
    (20.5, 14.2, 16.2),
    (20.5, 0, -0.5),
    (0, 0, 16.2),
    (-20.5, 0, 0),
    (-25.5, 14, -39.35),
    (0, 14, -62.5),
    (25.5, 14, -39.85),
]))
fillet.setExpression("Radius", "Params.fillet_radius")

doc.recompute()
